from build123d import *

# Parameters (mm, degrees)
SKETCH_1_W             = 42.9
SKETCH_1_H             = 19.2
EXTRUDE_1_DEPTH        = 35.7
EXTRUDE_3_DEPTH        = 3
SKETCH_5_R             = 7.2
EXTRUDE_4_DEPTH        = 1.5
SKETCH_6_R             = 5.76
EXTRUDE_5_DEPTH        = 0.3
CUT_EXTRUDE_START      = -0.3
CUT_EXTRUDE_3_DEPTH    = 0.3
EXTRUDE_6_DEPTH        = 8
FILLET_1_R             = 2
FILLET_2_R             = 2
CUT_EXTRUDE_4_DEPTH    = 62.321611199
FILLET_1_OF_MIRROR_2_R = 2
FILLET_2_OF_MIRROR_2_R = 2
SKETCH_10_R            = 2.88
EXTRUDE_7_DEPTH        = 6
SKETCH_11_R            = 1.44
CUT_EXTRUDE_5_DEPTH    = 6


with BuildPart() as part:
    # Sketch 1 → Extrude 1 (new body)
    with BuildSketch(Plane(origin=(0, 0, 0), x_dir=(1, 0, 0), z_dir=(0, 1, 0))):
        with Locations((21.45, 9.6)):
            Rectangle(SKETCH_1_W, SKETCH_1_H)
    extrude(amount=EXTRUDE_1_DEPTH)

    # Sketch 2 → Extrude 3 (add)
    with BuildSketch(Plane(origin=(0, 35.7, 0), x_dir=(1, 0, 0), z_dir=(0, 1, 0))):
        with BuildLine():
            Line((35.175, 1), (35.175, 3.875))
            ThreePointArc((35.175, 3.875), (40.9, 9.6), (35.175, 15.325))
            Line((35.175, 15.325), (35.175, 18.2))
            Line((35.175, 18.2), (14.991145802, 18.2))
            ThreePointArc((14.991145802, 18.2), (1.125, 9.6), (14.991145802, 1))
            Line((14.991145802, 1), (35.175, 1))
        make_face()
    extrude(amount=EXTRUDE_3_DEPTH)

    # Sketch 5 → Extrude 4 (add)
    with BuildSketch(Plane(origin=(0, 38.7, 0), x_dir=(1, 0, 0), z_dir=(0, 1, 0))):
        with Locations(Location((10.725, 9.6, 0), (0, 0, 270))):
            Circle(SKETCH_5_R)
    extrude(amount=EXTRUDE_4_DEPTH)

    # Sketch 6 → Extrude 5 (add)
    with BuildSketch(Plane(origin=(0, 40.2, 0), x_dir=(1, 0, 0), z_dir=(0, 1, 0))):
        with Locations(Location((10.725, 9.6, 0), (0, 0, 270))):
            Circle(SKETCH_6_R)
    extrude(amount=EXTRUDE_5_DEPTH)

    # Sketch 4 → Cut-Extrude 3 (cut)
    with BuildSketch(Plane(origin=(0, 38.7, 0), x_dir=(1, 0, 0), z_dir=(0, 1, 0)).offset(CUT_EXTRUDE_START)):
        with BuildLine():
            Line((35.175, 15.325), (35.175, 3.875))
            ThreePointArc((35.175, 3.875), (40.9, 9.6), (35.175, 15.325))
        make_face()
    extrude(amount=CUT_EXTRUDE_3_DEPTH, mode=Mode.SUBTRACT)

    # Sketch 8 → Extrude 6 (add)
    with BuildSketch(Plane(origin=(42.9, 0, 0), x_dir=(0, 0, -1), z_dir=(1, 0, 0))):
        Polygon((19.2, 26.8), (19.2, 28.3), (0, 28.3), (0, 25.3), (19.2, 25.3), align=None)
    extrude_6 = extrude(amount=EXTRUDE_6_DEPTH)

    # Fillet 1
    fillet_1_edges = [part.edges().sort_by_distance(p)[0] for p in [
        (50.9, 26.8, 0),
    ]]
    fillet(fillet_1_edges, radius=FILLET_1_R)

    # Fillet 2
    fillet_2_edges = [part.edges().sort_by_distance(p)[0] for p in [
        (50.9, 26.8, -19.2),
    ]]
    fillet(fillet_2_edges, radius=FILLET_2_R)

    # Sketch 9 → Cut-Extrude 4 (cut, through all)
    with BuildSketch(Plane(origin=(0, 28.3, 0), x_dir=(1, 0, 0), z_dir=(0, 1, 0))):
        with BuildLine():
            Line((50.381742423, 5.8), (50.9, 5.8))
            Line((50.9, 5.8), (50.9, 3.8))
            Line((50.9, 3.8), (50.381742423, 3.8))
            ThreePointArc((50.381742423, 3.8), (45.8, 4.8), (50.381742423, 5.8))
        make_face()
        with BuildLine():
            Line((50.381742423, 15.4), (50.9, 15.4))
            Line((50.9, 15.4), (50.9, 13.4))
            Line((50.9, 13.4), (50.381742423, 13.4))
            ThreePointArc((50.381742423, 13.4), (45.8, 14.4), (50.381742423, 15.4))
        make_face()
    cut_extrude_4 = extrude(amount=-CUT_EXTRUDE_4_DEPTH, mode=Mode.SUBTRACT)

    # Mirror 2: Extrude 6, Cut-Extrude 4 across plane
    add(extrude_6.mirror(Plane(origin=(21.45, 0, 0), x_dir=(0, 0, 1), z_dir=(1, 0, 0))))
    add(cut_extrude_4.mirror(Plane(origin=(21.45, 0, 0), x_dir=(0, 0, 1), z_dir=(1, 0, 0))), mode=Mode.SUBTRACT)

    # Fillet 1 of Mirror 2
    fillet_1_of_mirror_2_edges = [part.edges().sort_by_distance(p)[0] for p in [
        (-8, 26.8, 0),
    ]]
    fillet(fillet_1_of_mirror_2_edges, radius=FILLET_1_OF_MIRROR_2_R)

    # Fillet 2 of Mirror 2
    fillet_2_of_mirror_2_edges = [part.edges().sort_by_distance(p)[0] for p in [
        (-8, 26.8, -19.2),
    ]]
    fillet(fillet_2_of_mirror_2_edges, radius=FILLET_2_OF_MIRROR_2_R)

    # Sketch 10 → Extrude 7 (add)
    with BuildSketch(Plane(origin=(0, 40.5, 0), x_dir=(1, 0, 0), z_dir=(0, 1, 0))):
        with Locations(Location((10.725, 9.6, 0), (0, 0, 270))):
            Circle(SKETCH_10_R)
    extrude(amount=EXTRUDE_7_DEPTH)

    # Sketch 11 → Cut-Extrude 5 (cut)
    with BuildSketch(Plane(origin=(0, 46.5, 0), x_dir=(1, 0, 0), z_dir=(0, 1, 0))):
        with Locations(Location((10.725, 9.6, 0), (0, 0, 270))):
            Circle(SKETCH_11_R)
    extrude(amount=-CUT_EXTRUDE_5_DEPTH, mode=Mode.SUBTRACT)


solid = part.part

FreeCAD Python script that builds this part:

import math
import FreeCAD as App
import Part
import Sketcher
from FreeCAD import Vector


def edges_at(feature, points):
    """Names of the edges that pass closest to the given points."""
    edges = feature.Shape.Edges
    near = lambda p: min(range(len(edges)), key=lambda i: edges[i].distToShape(Part.Vertex(*p))[0])
    return sorted({f"Edge{near(p) + 1}" for p in points})

doc = App.newDocument("Part")
body = doc.addObject("PartDesign::Body", "Body")

sketch1 = body.newObject("Sketcher::SketchObject", "Sketch")
sketch1.AttachmentSupport = (doc.getObject("XZ_Plane"), [""])
sketch1.MapMode = "FlatFace"
sketch1.addGeometry(Part.LineSegment(Vector(0, -19.2, 0), Vector(0, 0, 0)), False)
sketch1.addGeometry(Part.LineSegment(Vector(0, 0, 0), Vector(42.9, 0, 0)), False)
sketch1.addGeometry(Part.LineSegment(Vector(42.9, 0, 0), Vector(42.9, -19.2, 0)), False)
sketch1.addGeometry(Part.LineSegment(Vector(42.9, -19.2, 0), Vector(0, -19.2, 0)), False)
sketch1.addConstraint(Sketcher.Constraint("Coincident", 0, 2, 1, 1))
sketch1.addConstraint(Sketcher.Constraint("Coincident", 1, 2, 2, 1))
sketch1.addConstraint(Sketcher.Constraint("Coincident", 2, 2, 3, 1))
sketch1.addConstraint(Sketcher.Constraint("Coincident", 3, 2, 0, 1))
sketch1.addConstraint(Sketcher.Constraint("Vertical", 0))
sketch1.addConstraint(Sketcher.Constraint("Horizontal", 1))
sketch1.addConstraint(Sketcher.Constraint("Vertical", 2))
sketch1.addConstraint(Sketcher.Constraint("Horizontal", 3))
sketch1.addConstraint(Sketcher.Constraint("Coincident", 0, 2, -1, 1))
sketch1.addConstraint(Sketcher.Constraint("DistanceX", 1, 1, 1, 2, 42.9))
sketch1.addConstraint(Sketcher.Constraint("DistanceY", 0, 1, 0, 2, 19.2))
pad1 = body.newObject("PartDesign::Pad", "Pad")
pad1.Profile = sketch1
pad1.Length = 35.7
pad1.Reversed = True

sketch2 = body.newObject("Sketcher::SketchObject", "Sketch001")
sketch2.AttachmentSupport = (doc.getObject("XZ_Plane"), [""])
sketch2.MapMode = "FlatFace"
sketch2.AttachmentOffset = App.Placement(Vector(0, 0, -35.7), App.Rotation())
sketch2.addGeometry(Part.LineSegment(Vector(35.175, -1, 0), Vector(35.175, -3.875, 0)), False)
sketch2.addGeometry(Part.ArcOfCircle(Part.Circle(Vector(35.175, -9.6, 0), Vector(0, 0, 1), 5.725), math.radians(-90), math.radians(90)), False)
sketch2.addGeometry(Part.LineSegment(Vector(35.175, -15.325, 0), Vector(35.175, -18.2, 0)), False)
sketch2.addGeometry(Part.LineSegment(Vector(35.175, -18.2, 0), Vector(14.991146, -18.2, 0)), False)
sketch2.addGeometry(Part.ArcOfCircle(Part.Circle(Vector(10.725, -9.6, 0), Vector(0, 0, 1), 9.6), math.radians(63.61567), math.radians(296.38433)), False)
sketch2.addGeometry(Part.LineSegment(Vector(14.991146, -1, 0), Vector(35.175, -1, 0)), False)
sketch2.addConstraint(Sketcher.Constraint("Coincident", 0, 2, 1, 2))
sketch2.addConstraint(Sketcher.Constraint("Coincident", 1, 1, 2, 1))
sketch2.addConstraint(Sketcher.Constraint("Coincident", 2, 2, 3, 1))
sketch2.addConstraint(Sketcher.Constraint("Coincident", 3, 2, 4, 2))
sketch2.addConstraint(Sketcher.Constraint("Coincident", 4, 1, 5, 1))
sketch2.addConstraint(Sketcher.Constraint("Coincident", 5, 2, 0, 1))
sketch2.addConstraint(Sketcher.Constraint("Vertical", 0))
sketch2.addConstraint(Sketcher.Constraint("Vertical", 2))
sketch2.addConstraint(Sketcher.Constraint("Horizontal", 3))
sketch2.addConstraint(Sketcher.Constraint("Horizontal", 5))
sketch2.addConstraint(Sketcher.Constraint("Horizontal", 1, 3, 4, 3))
sketch2.addConstraint(Sketcher.Constraint("Vertical", 1, 3, 0, 2))
sketch2.addConstraint(Sketcher.Constraint("Vertical", 0, 2, 1, 1))
sketch2.addConstraint(Sketcher.Constraint("Vertical", 3, 2, 4, 1))
sketch2.addConstraint(Sketcher.Constraint("Radius", 4, 9.6))
sketch2.addConstraint(Sketcher.Constraint("DistanceY", 4, 1, -1, 1, 1.0))
sketch2.addConstraint(Sketcher.Constraint("Radius", 1, 5.725))
sketch2.addConstraint(Sketcher.Constraint("DistanceY", 1, 3, -1, 1, 9.6))
sketch2.addConstraint(Sketcher.Constraint("DistanceX", 4, 3, 1, 3, 24.45))
sketch2.addConstraint(Sketcher.Constraint("DistanceX", -1, 1, 1, 3, 35.175))
pad2 = body.newObject("PartDesign::Pad", "Pad001")
pad2.Profile = sketch2
pad2.Length = 3
pad2.Reversed = True

sketch3 = body.newObject("Sketcher::SketchObject", "Sketch002")
sketch3.AttachmentSupport = (doc.getObject("XZ_Plane"), [""])
sketch3.MapMode = "FlatFace"
sketch3.AttachmentOffset = App.Placement(Vector(0, 0, -38.7), App.Rotation())
sketch3.addGeometry(Part.Circle(Vector(10.725, -9.6, 0), Vector(0, 0, 1), 7.2), False)
sketch3.addConstraint(Sketcher.Constraint("Diameter", 0, 14.4))
sketch3.addConstraint(Sketcher.Constraint("DistanceY", 0, 3, -1, 1, 9.6))
sketch3.addConstraint(Sketcher.Constraint("DistanceX", -1, 1, 0, 3, 10.725))
pad3 = body.newObject("PartDesign::Pad", "Pad002")
pad3.Profile = sketch3
pad3.Length = 1.5
pad3.Reversed = True

sketch4 = body.newObject("Sketcher::SketchObject", "Sketch003")
sketch4.AttachmentSupport = (doc.getObject("XZ_Plane"), [""])
sketch4.MapMode = "FlatFace"
sketch4.AttachmentOffset = App.Placement(Vector(0, 0, -40.2), App.Rotation())
sketch4.addGeometry(Part.Circle(Vector(10.725, -9.6, 0), Vector(0, 0, 1), 5.76), False)
sketch4.addConstraint(Sketcher.Constraint("Diameter", 0, 11.52))
sketch4.addConstraint(Sketcher.Constraint("DistanceY", 0, 3, -1, 1, 9.6))
sketch4.addConstraint(Sketcher.Constraint("DistanceX", -1, 1, 0, 3, 10.725))
pad4 = body.newObject("PartDesign::Pad", "Pad003")
pad4.Profile = sketch4
pad4.Length = 0.3
pad4.Reversed = True

sketch5 = body.newObject("Sketcher::SketchObject", "Sketch004")
sketch5.AttachmentSupport = (doc.getObject("XZ_Plane"), [""])
sketch5.MapMode = "FlatFace"
sketch5.AttachmentOffset = App.Placement(Vector(0, 0, -38.4), App.Rotation())
sketch5.addGeometry(Part.LineSegment(Vector(35.175, -15.325, 0), Vector(35.175, -3.875, 0)), False)
sketch5.addGeometry(Part.ArcOfCircle(Part.Circle(Vector(35.175, -9.6, 0), Vector(0, 0, 1), 5.725), math.radians(-90), math.radians(90)), False)
sketch5.addConstraint(Sketcher.Constraint("Coincident", 0, 1, 1, 1))
sketch5.addConstraint(Sketcher.Constraint("Coincident", 1, 2, 0, 2))
sketch5.addConstraint(Sketcher.Constraint("Vertical", 0))
sketch5.addConstraint(Sketcher.Constraint("Vertical", 1, 3, 0, 1))
sketch5.addConstraint(Sketcher.Constraint("Radius", 1, 5.725))
sketch5.addConstraint(Sketcher.Constraint("DistanceY", 1, 3, -1, 1, 9.6))
sketch5.addConstraint(Sketcher.Constraint("DistanceX", -1, 1, 1, 3, 35.175))
pocket1 = body.newObject("PartDesign::Pocket", "Pocket")
pocket1.Profile = sketch5
pocket1.Length = 0.3

sketch6 = body.newObject("Sketcher::SketchObject", "Sketch005")
sketch6.AttachmentSupport = (doc.getObject("YZ_Plane"), [""])
sketch6.MapMode = "FlatFace"
sketch6.AttachmentOffset = App.Placement(Vector(0, 0, 42.9), App.Rotation())
sketch6.addGeometry(Part.LineSegment(Vector(28.3, -19.2, 0), Vector(28.3, 0, 0)), False)
sketch6.addGeometry(Part.LineSegment(Vector(28.3, 0, 0), Vector(25.3, 0, 0)), False)
sketch6.addGeometry(Part.LineSegment(Vector(25.3, 0, 0), Vector(25.3, -19.2, 0)), False)
sketch6.addGeometry(Part.LineSegment(Vector(25.3, -19.2, 0), Vector(28.3, -19.2, 0)), False)
sketch6.addConstraint(Sketcher.Constraint("Coincident", 0, 2, 1, 1))
sketch6.addConstraint(Sketcher.Constraint("Coincident", 1, 2, 2, 1))
sketch6.addConstraint(Sketcher.Constraint("Coincident", 2, 2, 3, 1))
sketch6.addConstraint(Sketcher.Constraint("Coincident", 3, 2, 0, 1))
sketch6.addConstraint(Sketcher.Constraint("Vertical", 0))
sketch6.addConstraint(Sketcher.Constraint("Horizontal", 1))
sketch6.addConstraint(Sketcher.Constraint("Vertical", 2))
sketch6.addConstraint(Sketcher.Constraint("Horizontal", 3))
sketch6.addConstraint(Sketcher.Constraint("PointOnObject", 0, 2, -1))
sketch6.addConstraint(Sketcher.Constraint("DistanceX", 1, 2, 1, 1, 3.0))
sketch6.addConstraint(Sketcher.Constraint("DistanceY", 0, 1, 0, 2, 19.2))
sketch6.addConstraint(Sketcher.Constraint("DistanceX", -1, 1, 0, 2, 28.3))
pad5 = body.newObject("PartDesign::Pad", "Pad004")
pad5.Profile = sketch6
pad5.Length = 8
doc.recompute()

fillet = body.newObject("PartDesign::Fillet", "Fillet")
fillet.Base = (pad5, edges_at(pad5, [(50.9, 26.8, 0)]))
fillet.Radius = 2
doc.recompute()

fillet2 = body.newObject("PartDesign::Fillet", "Fillet001")
fillet2.Base = (fillet, edges_at(fillet, [(50.9, 26.8, -19.2)]))
fillet2.Radius = 2

sketch7 = body.newObject("Sketcher::SketchObject", "Sketch006")
sketch7.AttachmentSupport = (doc.getObject("XZ_Plane"), [""])
sketch7.MapMode = "FlatFace"
sketch7.AttachmentOffset = App.Placement(Vector(0, 0, -28.3), App.Rotation())
sketch7.addGeometry(Part.LineSegment(Vector(50.9, -5.8, 0), Vector(50.381742, -5.8, 0)), False)
sketch7.addGeometry(Part.ArcOfCircle(Part.Circle(Vector(48.2, -4.8, 0), Vector(0, 0, 1), 2.4), math.radians(24.624318), math.radians(335.375682)), False)
sketch7.addGeometry(Part.LineSegment(Vector(50.381742, -3.8, 0), Vector(50.9, -3.8, 0)), False)
sketch7.addGeometry(Part.LineSegment(Vector(50.9, -3.8, 0), Vector(50.9, -5.8, 0)), False)
sketch7.addGeometry(Part.LineSegment(Vector(50.9, -15.4, 0), Vector(50.381742, -15.4, 0)), False)
sketch7.addGeometry(Part.ArcOfCircle(Part.Circle(Vector(48.2, -14.4, 0), Vector(0, 0, 1), 2.4), math.radians(24.624318), math.radians(335.375682)), False)
sketch7.addGeometry(Part.LineSegment(Vector(50.381742, -13.4, 0), Vector(50.9, -13.4, 0)), False)
sketch7.addGeometry(Part.LineSegment(Vector(50.9, -13.4, 0), Vector(50.9, -15.4, 0)), False)
sketch7.addConstraint(Sketcher.Constraint("Coincident", 0, 2, 1, 2))
sketch7.addConstraint(Sketcher.Constraint("Coincident", 1, 1, 2, 1))
sketch7.addConstraint(Sketcher.Constraint("Coincident", 2, 2, 3, 1))
sketch7.addConstraint(Sketcher.Constraint("Coincident", 3, 2, 0, 1))
sketch7.addConstraint(Sketcher.Constraint("Coincident", 4, 2, 5, 2))
sketch7.addConstraint(Sketcher.Constraint("Coincident", 5, 1, 6, 1))
sketch7.addConstraint(Sketcher.Constraint("Coincident", 6, 2, 7, 1))
sketch7.addConstraint(Sketcher.Constraint("Coincident", 7, 2, 4, 1))
sketch7.addConstraint(Sketcher.Constraint("Horizontal", 0))
sketch7.addConstraint(Sketcher.Constraint("Horizontal", 2))
sketch7.addConstraint(Sketcher.Constraint("Vertical", 3))
sketch7.addConstraint(Sketcher.Constraint("Horizontal", 4))
sketch7.addConstraint(Sketcher.Constraint("Horizontal", 6))
sketch7.addConstraint(Sketcher.Constraint("Vertical", 7))
sketch7.addConstraint(Sketcher.Constraint("Equal", 1, 5))
sketch7.addConstraint(Sketcher.Constraint("Vertical", 1, 3, 5, 3))
sketch7.addConstraint(Sketcher.Constraint("Vertical", 0, 2, 1, 1))
sketch7.addConstraint(Sketcher.Constraint("Vertical", 1, 1, 4, 2))
sketch7.addConstraint(Sketcher.Constraint("Vertical", 4, 2, 5, 1))
sketch7.addConstraint(Sketcher.Constraint("Vertical", 3, 2, 6, 2))
sketch7.addConstraint(Sketcher.Constraint("Radius", 1, 2.4))
sketch7.addConstraint(Sketcher.Constraint("DistanceY", 3, 2, 3, 1, 2.0))
sketch7.addConstraint(Sketcher.Constraint("DistanceX", -1, 1, 1, 3, 48.2))
sketch7.addConstraint(Sketcher.Constraint("DistanceY", 1, 3, -1, 1, 4.8))
sketch7.addConstraint(Sketcher.Constraint("DistanceY", 5, 3, -1, 1, 14.4))
sketch7.addConstraint(Sketcher.Constraint("DistanceX", -1, 1, 2, 2, 50.9))
pocket2 = body.newObject("PartDesign::Pocket", "Pocket001")
pocket2.Profile = sketch7
pocket2.Type = "ThroughAll"
pocket2.Reversed = True
doc.recompute()

datumplane = body.newObject("PartDesign::Plane", "DatumPlane")
datumplane.AttachmentSupport = (doc.getObject("YZ_Plane"), [""])
datumplane.MapMode = "FlatFace"
datumplane.AttachmentOffset = App.Placement(Vector(0, 0, 21.45), App.Rotation())
mirrored = body.newObject("PartDesign::Mirrored", "Mirrored")
mirrored.Originals = [pad5, pocket2]
mirrored.MirrorPlane = (datumplane, [""])
body.Tip = mirrored
doc.recompute()

fillet3 = body.newObject("PartDesign::Fillet", "Fillet002")
fillet3.Base = (mirrored, edges_at(mirrored, [(-8, 26.8, 0)]))
fillet3.Radius = 2
doc.recompute()

fillet4 = body.newObject("PartDesign::Fillet", "Fillet003")
fillet4.Base = (fillet3, edges_at(fillet3, [(-8, 26.8, -19.2)]))
fillet4.Radius = 2

sketch8 = body.newObject("Sketcher::SketchObject", "Sketch007")
sketch8.AttachmentSupport = (doc.getObject("XZ_Plane"), [""])
sketch8.MapMode = "FlatFace"
sketch8.AttachmentOffset = App.Placement(Vector(0, 0, -40.5), App.Rotation())
sketch8.addGeometry(Part.Circle(Vector(10.725, -9.6, 0), Vector(0, 0, 1), 2.88), False)
sketch8.addConstraint(Sketcher.Constraint("Diameter", 0, 5.76))
sketch8.addConstraint(Sketcher.Constraint("DistanceY", 0, 3, -1, 1, 9.6))
sketch8.addConstraint(Sketcher.Constraint("DistanceX", -1, 1, 0, 3, 10.725))
pad6 = body.newObject("PartDesign::Pad", "Pad005")
pad6.Profile = sketch8
pad6.Length = 6
pad6.Reversed = True

sketch9 = body.newObject("Sketcher::SketchObject", "Sketch008")
sketch9.AttachmentSupport = (doc.getObject("XZ_Plane"), [""])
sketch9.MapMode = "FlatFace"
sketch9.AttachmentOffset = App.Placement(Vector(0, 0, -46.5), App.Rotation())
sketch9.addGeometry(Part.Circle(Vector(10.725, -9.6, 0), Vector(0, 0, 1), 1.44), False)
sketch9.addConstraint(Sketcher.Constraint("Diameter", 0, 2.88))
sketch9.addConstraint(Sketcher.Constraint("DistanceY", 0, 3, -1, 1, 9.6))
sketch9.addConstraint(Sketcher.Constraint("DistanceX", -1, 1, 0, 3, 10.725))
pocket3 = body.newObject("PartDesign::Pocket", "Pocket002")
pocket3.Profile = sketch9
pocket3.Length = 6
pocket3.Reversed = True

doc.recompute()
